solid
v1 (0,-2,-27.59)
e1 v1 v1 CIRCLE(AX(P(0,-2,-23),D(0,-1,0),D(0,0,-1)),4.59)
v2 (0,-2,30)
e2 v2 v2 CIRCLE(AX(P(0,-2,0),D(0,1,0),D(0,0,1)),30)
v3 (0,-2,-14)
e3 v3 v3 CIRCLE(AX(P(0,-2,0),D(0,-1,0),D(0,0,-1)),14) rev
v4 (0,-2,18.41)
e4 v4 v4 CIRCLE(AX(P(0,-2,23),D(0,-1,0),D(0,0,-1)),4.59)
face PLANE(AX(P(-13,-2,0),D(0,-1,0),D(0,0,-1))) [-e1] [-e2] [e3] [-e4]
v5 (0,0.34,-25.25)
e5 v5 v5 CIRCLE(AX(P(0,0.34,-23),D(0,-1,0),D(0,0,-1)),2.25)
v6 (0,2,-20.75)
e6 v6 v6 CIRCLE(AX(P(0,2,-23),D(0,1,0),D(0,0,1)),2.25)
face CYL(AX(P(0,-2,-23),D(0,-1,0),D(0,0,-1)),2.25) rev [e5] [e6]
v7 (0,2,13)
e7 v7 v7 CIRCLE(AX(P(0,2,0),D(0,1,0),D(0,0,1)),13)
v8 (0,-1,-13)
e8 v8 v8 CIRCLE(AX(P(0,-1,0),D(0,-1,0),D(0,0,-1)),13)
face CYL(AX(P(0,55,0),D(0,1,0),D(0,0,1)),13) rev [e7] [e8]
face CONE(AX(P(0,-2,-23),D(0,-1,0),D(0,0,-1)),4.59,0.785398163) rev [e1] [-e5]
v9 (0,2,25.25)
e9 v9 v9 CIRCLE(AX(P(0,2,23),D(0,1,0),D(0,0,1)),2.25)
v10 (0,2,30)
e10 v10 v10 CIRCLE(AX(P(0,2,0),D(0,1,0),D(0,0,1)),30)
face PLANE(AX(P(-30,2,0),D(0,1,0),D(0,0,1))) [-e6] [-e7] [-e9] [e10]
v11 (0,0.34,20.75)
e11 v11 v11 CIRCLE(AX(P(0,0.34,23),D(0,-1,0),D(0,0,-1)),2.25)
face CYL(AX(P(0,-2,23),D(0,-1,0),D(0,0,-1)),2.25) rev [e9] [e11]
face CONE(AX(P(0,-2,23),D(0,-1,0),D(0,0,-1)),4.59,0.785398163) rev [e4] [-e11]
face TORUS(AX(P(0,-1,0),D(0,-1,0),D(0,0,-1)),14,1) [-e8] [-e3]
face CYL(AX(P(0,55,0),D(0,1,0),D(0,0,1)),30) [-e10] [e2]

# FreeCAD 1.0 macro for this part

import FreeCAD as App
import Part
import Sketcher
from FreeCAD import Vector
Q = App.Units.Quantity


def edges_at(feature, points):
    """Names of the edges that pass closest to the given points."""
    edges = feature.Shape.Edges
    near = lambda p: min(range(len(edges)), key=lambda i: edges[i].distToShape(Part.Vertex(*p))[0])
    return sorted({f"Edge{near(p) + 1}" for p in points})


def add_polygon(sketch, points):
    """Adds a closed chain of lines whose ends are joined by coincident constraints."""
    first, n = sketch.GeometryCount, len(points)
    for a, b in zip(points, points[1:] + points[:1]):
        sketch.addGeometry(Part.LineSegment(App.Vector(*a, 0), App.Vector(*b, 0)), False)
    for i in range(n):
        sketch.addConstraint(Sketcher.Constraint("Coincident", first + i, 2, first + (i + 1) % n, 1))

doc = App.newDocument("Part")
body = doc.addObject("PartDesign::Body", "Body")

# Sketch on XY plane
sketch1 = doc.addObject("Sketcher::SketchObject", "Sketch")
body.addObject(sketch1)
sketch1.AttachmentSupport = (doc.XY_Plane, [""])
sketch1.MapMode = "FlatFace"
add_polygon(sketch1, [(-30, 2), (-30, -2), (-13, -2), (-13, 4), (-16, 4), (-16, 2)])  # lines 0-5
sketch1.addConstraint([
    Sketcher.Constraint("Vertical", 0),
    Sketcher.Constraint("Horizontal", 1),
    Sketcher.Constraint("Vertical", 2),
    Sketcher.Constraint("Horizontal", 3),
    Sketcher.Constraint("Vertical", 4),
    Sketcher.Constraint("Horizontal", 5),
    Sketcher.Constraint("DistanceX", 1, 1, 1, 2, Q("17 mm")),
    Sketcher.Constraint("DistanceX", 3, 2, 3, 1, Q("3 mm")),
    Sketcher.Constraint("DistanceY", 0, 2, 0, 1, Q("4 mm")),
    Sketcher.Constraint("DistanceY", 2, 1, 2, 2, Q("6 mm")),
    Sketcher.Constraint("DistanceX", 0, 2, -1, 1, Q("30 mm")),
    Sketcher.Constraint("DistanceY", 0, 2, -1, 1, Q("2 mm")),
])
revolution = doc.addObject("PartDesign::Revolution", "Revolution")
body.addObject(revolution)
revolution.Profile = sketch1
revolution.ReferenceAxis = (sketch1, ["V_Axis"])
revolution.Angle = 360

# Sketch on YZ plane
sketch2 = doc.addObject("Sketcher::SketchObject", "Sketch001")
body.addObject(sketch2)
sketch2.AttachmentSupport = (doc.YZ_Plane, [""])
sketch2.MapMode = "FlatFace"
add_polygon(sketch2, [(2, 23), (-2, 23), (-2, 18.4), (0.3, 20.8), (2, 20.8)])  # lines 0-4
sketch2.addGeometry(Part.LineSegment(Vector(-2, 23, 0), Vector(2, 23, 0)), True)  # axis
sketch2.addConstraint([
    Sketcher.Constraint("Horizontal", 0),
    Sketcher.Constraint("Vertical", 1),
    Sketcher.Constraint("Horizontal", 3),
    Sketcher.Constraint("Vertical", 4),
    Sketcher.Constraint("Horizontal", 5),
    Sketcher.Constraint("Coincident", 5, 1, 0, 2),
    Sketcher.Constraint("Vertical", 3, 2, 5, 2),
    Sketcher.Constraint("DistanceX", 0, 2, 0, 1, Q("4 mm")),
    Sketcher.Constraint("Angle", 2, Q("45 deg")),
    Sketcher.Constraint("DistanceX", 0, 2, -1, 1, Q("2 mm")),
    Sketcher.Constraint("DistanceY", -1, 1, 0, 2, Q("23 mm")),
    Sketcher.Constraint("DistanceX", 3, 1, 3, 2, Q("1.66 mm")),
    Sketcher.Constraint("DistanceY", 1, 2, 1, 1, Q("4.59 mm")),
])
groove = doc.addObject("PartDesign::Groove", "Groove")
body.addObject(groove)
groove.Profile = sketch2
groove.ReferenceAxis = (sketch2, ["Axis0"])
groove.Angle = 360
doc.recompute()

linearpattern = doc.addObject("PartDesign::LinearPattern", "LinearPattern")
body.addObject(linearpattern)
linearpattern.Originals = [groove]
linearpattern.Direction = (doc.Z_Axis, [""])
linearpattern.Mode = "offset"
linearpattern.Offset = 46
linearpattern.Occurrences = 2
linearpattern.Reversed = True
body.Tip = linearpattern
doc.recompute()

fillet = doc.addObject("PartDesign::Fillet", "Fillet")
body.addObject(fillet)
fillet.Base = (linearpattern, edges_at(linearpattern, [(0, -2, -13)]))
fillet.Radius = 1
doc.recompute()

chamfer = doc.addObject("PartDesign::Chamfer", "Chamfer")
body.addObject(chamfer)
chamfer.Base = (fillet, edges_at(fillet, [(0, 4, -16)]))
chamfer.Size = 0.5

# Sketch on XZ plane
sketch3 = doc.addObject("Sketcher::SketchObject", "Sketch002")
body.addObject(sketch3)
sketch3.AttachmentSupport = (doc.XZ_Plane, [""])
sketch3.MapMode = "FlatFace"
sketch3.AttachmentOffset = App.Placement(Vector(0, 0, -2), App.Rotation())
sketch3.addGeometry(Part.Circle(Vector(0, 0, 0), Vector(0, 0, 1), 20), False)
sketch3.addConstraint([
    Sketcher.Constraint("Coincident", 0, 3, -1, 1),
    Sketcher.Constraint("Diameter", 0, Q("40.148936 mm")),
])
pocket1 = doc.addObject("PartDesign::Pocket", "Pocket")
body.addObject(pocket1)
pocket1.Profile = sketch3
pocket1.Length = 10

doc.recompute()
